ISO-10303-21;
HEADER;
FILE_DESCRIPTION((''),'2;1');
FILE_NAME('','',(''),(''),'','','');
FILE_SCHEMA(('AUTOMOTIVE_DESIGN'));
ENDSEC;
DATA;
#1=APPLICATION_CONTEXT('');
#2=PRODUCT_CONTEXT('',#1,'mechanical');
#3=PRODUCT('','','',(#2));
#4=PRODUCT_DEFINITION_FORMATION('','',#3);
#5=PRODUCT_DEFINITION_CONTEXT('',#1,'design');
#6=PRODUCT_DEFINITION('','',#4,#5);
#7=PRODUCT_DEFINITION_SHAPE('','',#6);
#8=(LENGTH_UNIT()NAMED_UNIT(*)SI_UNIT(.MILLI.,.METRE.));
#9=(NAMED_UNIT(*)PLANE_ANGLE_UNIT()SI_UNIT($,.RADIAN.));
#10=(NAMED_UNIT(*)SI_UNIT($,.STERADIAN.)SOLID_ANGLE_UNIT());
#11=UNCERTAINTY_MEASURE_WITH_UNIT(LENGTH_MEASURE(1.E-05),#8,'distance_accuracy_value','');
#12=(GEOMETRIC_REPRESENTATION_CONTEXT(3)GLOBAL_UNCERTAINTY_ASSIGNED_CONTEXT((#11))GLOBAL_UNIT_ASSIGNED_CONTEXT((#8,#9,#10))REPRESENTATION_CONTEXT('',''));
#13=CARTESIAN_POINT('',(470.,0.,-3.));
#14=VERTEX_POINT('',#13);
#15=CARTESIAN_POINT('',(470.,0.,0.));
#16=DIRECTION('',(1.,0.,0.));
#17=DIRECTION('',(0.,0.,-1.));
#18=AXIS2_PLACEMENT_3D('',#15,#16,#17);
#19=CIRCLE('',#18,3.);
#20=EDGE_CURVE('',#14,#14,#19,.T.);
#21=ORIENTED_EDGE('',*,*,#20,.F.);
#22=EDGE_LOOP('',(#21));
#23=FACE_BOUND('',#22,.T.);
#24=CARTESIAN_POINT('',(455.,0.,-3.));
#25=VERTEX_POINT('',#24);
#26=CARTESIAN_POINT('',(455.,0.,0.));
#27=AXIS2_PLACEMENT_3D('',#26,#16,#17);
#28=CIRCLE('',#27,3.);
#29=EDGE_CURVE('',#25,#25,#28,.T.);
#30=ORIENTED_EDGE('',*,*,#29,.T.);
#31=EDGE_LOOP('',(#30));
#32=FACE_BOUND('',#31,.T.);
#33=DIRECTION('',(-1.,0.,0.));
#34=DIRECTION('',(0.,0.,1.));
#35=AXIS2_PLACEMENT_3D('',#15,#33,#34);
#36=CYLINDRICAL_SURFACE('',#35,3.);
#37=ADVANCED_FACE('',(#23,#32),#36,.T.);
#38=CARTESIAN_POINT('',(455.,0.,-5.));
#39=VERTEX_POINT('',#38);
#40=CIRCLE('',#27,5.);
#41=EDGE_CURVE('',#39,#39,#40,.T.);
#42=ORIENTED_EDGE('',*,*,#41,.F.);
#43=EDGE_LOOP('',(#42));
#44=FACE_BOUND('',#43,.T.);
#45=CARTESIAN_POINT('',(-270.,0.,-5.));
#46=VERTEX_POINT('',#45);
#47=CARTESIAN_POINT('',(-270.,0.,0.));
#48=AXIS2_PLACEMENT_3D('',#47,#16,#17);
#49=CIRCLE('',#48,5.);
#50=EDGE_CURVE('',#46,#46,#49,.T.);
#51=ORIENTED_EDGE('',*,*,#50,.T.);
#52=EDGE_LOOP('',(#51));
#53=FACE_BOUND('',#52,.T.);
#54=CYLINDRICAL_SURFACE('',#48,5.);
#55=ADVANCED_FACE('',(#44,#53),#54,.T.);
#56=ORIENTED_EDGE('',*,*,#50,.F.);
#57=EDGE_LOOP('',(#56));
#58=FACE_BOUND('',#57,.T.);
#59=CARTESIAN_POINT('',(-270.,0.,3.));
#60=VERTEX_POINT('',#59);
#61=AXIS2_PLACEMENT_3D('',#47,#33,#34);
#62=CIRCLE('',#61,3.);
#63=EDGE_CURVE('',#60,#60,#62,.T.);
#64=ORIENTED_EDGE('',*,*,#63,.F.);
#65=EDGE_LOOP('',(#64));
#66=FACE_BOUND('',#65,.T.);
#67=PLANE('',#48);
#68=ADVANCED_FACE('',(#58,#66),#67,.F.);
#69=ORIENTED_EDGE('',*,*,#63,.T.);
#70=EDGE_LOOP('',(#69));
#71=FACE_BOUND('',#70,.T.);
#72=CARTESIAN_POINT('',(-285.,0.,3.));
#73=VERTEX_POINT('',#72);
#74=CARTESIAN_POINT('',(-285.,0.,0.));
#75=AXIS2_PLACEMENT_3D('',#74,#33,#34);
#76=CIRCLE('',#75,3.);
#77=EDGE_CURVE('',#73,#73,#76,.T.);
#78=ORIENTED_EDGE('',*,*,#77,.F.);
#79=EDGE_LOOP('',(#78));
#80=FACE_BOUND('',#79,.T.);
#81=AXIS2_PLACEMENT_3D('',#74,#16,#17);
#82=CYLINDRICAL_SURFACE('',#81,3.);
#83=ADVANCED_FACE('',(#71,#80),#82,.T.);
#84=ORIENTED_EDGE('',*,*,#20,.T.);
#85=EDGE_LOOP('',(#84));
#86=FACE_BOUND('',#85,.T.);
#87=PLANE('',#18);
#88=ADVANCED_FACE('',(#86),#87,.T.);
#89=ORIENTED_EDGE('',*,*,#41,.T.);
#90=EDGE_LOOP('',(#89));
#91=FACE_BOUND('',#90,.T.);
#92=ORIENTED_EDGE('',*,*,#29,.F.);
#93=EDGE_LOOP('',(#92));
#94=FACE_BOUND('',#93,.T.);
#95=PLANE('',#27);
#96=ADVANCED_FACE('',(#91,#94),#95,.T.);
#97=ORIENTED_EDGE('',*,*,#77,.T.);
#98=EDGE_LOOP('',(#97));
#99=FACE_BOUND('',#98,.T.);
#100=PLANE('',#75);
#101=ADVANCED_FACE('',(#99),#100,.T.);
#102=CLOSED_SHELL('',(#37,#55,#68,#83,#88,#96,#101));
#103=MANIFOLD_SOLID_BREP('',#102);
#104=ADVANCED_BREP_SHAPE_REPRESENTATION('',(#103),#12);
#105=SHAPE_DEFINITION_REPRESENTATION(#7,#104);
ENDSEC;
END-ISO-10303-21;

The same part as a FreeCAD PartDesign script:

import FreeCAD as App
import Part
import Sketcher

V = App.Vector

doc = App.newDocument("Part")
params = doc.addObject("Spreadsheet::Sheet", "Params")
for row, (alias, value) in enumerate([
    ("sketch1_diameter", "10 mm"),
    ("pad1_length", "455 mm"),
    ("pad1_length2", "270 mm"),
    ("sketch2_diameter", "6 mm"),
    ("pad2_length", "15 mm"),
    ("sketch3_diameter", "6 mm"),
    ("pad3_length", "15 mm"),
], start=1):
    params.set(f"A{row}", alias)
    params.set(f"B{row}", "=" + value)
    params.setAlias(f"B{row}", alias)

body = doc.addObject("PartDesign::Body", "Body")

# Sketch on YZ plane
sketch1 = body.newObject("Sketcher::SketchObject", "Sketch")
sketch1.AttachmentSupport = (doc.getObject("YZ_Plane"), [""])
sketch1.MapMode = "FlatFace"
sketch1.addGeometry(Part.Circle(V(0, 0, 0), V(0, 0, 1), 5), False)
sketch1.addConstraint(Sketcher.Constraint("Coincident", 0, 3, -1, 1))
sketch1.addConstraint(Sketcher.Constraint("Diameter", 0, 10.0))
sketch1.setExpression("Constraints[1]", "Params.sketch1_diameter")
pad1 = body.newObject("PartDesign::Pad", "Pad")
pad1.Profile = sketch1
pad1.Type = "TwoLengths"
pad1.setExpression("Length", "Params.pad1_length")
pad1.setExpression("Length2", "Params.pad1_length2")

# Sketch on YZ plane
sketch2 = body.newObject("Sketcher::SketchObject", "Sketch001")
sketch2.AttachmentSupport = (doc.getObject("YZ_Plane"), [""])
sketch2.MapMode = "FlatFace"
sketch2.AttachmentOffset = App.Placement(V(0, 0, -270), App.Rotation())
sketch2.addGeometry(Part.Circle(V(0, 0, 0), V(0, 0, 1), 3), False)
sketch2.addConstraint(Sketcher.Constraint("Coincident", 0, 3, -1, 1))
sketch2.addConstraint(Sketcher.Constraint("Diameter", 0, 6.0))
sketch2.setExpression("Constraints[1]", "Params.sketch2_diameter")
pad2 = body.newObject("PartDesign::Pad", "Pad001")
pad2.Profile = sketch2
pad2.setExpression("Length", "Params.pad2_length")
pad2.Reversed = True

# Sketch on YZ plane
sketch3 = body.newObject("Sketcher::SketchObject", "Sketch002")
sketch3.AttachmentSupport = (doc.getObject("YZ_Plane"), [""])
sketch3.MapMode = "FlatFace"
sketch3.AttachmentOffset = App.Placement(V(0, 0, 470), App.Rotation())
sketch3.addGeometry(Part.Circle(V(0, 0, 0), V(0, 0, 1), 3), False)
sketch3.addConstraint(Sketcher.Constraint("Coincident", 0, 3, -1, 1))
sketch3.addConstraint(Sketcher.Constraint("Diameter", 0, 6.0))
sketch3.setExpression("Constraints[1]", "Params.sketch3_diameter")
pad3 = body.newObject("PartDesign::Pad", "Pad002")
pad3.Profile = sketch3
pad3.setExpression("Length", "Params.pad3_length")
pad3.Reversed = True

doc.recompute()
